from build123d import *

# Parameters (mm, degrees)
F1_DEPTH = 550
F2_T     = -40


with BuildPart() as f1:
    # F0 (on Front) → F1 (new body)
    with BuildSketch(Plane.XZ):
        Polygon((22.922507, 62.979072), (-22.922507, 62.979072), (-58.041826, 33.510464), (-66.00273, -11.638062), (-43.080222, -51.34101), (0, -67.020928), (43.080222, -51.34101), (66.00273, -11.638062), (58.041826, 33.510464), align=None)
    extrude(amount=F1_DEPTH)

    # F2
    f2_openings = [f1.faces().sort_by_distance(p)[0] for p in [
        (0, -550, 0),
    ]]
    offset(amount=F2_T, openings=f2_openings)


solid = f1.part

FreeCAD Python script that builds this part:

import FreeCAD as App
import Part
import Sketcher

V = App.Vector
Q = App.Units.Quantity


def faces_at(feature, points):
    """Names of the faces that lie closest to the given points."""
    faces = feature.Shape.Faces
    near = lambda p: min(range(len(faces)), key=lambda i: faces[i].distToShape(Part.Vertex(*p))[0])
    return sorted({f"Face{near(p) + 1}" for p in points})


def add_polygon(sketch, points):
    """Adds a closed chain of lines whose ends are joined by coincident constraints."""
    first, n = sketch.GeometryCount, len(points)
    for a, b in zip(points, points[1:] + points[:1]):
        sketch.addGeometry(Part.LineSegment(App.Vector(*a, 0), App.Vector(*b, 0)), False)
    for i in range(n):
        sketch.addConstraint(Sketcher.Constraint("Coincident", first + i, 2, first + (i + 1) % n, 1))

doc = App.newDocument("Part")
params = doc.addObject("Spreadsheet::Sheet", "Params")
for row, (alias, value) in enumerate([
    ("pad1_length", "550 mm"),
    ("thickness_wall", "40 mm"),
], start=1):
    params.set(f"A{row}", alias)
    params.set(f"B{row}", "=" + value)
    params.setAlias(f"B{row}", alias)

body = doc.addObject("PartDesign::Body", "Body")

# Sketch on XZ plane
sketch1 = body.newObject("Sketcher::SketchObject", "Sketch")
sketch1.AttachmentSupport = (doc.getObject("XZ_Plane"), [""])
sketch1.MapMode = "FlatFace"
add_polygon(sketch1, [(22.922507, 62.979072), (-22.922507, 62.979072), (-58.041826, 33.510464), (-66.00273, -11.638062), (-43.080222, -51.34101), (0, -67.020928), (43.080222, -51.34101), (66.00273, -11.638062), (58.041826, 33.510464)])  # lines 0-8
sketch1.addConstraint([
    Sketcher.Constraint("Horizontal", 0),
    Sketcher.Constraint("Symmetric", 3, 2, 5, 2, -2),
    Sketcher.Constraint("Symmetric", 2, 2, 6, 2, -2),
    Sketcher.Constraint("Symmetric", 1, 2, 7, 2, -2),
    Sketcher.Constraint("PointOnObject", 4, 2, -2),
    Sketcher.Constraint("Equal", 1, 2),
    Sketcher.Constraint("Equal", 2, 3),
    Sketcher.Constraint("Equal", 3, 4),
    Sketcher.Constraint("Equal", 7, 8),
    Sketcher.Constraint("Angle", 1, Q("-140 deg")),
    Sketcher.Constraint("Angle", 2, Q("-100.000001 deg")),
    Sketcher.Constraint("Angle", 3, Q("-60 deg")),
    Sketcher.Constraint("Angle", 4, Q("-19.999999 deg")),
    Sketcher.Constraint("DistanceY", 4, 2, 0, 2, Q("130 mm")),
    Sketcher.Constraint("DistanceY", 3, 2, -1, 1, Q("51.34101 mm")),
])
pad1 = body.newObject("PartDesign::Pad", "Pad")
pad1.Profile = sketch1
pad1.setExpression("Length", "Params.pad1_length")
doc.recompute()

thickness = body.newObject("PartDesign::Thickness", "Thickness")
thickness.Base = (pad1, faces_at(pad1, [(0, -550, -2.021)]))
thickness.setExpression("Value", "Params.thickness_wall")
thickness.Reversed = True
thickness.Join = "Arc"

doc.recompute()
